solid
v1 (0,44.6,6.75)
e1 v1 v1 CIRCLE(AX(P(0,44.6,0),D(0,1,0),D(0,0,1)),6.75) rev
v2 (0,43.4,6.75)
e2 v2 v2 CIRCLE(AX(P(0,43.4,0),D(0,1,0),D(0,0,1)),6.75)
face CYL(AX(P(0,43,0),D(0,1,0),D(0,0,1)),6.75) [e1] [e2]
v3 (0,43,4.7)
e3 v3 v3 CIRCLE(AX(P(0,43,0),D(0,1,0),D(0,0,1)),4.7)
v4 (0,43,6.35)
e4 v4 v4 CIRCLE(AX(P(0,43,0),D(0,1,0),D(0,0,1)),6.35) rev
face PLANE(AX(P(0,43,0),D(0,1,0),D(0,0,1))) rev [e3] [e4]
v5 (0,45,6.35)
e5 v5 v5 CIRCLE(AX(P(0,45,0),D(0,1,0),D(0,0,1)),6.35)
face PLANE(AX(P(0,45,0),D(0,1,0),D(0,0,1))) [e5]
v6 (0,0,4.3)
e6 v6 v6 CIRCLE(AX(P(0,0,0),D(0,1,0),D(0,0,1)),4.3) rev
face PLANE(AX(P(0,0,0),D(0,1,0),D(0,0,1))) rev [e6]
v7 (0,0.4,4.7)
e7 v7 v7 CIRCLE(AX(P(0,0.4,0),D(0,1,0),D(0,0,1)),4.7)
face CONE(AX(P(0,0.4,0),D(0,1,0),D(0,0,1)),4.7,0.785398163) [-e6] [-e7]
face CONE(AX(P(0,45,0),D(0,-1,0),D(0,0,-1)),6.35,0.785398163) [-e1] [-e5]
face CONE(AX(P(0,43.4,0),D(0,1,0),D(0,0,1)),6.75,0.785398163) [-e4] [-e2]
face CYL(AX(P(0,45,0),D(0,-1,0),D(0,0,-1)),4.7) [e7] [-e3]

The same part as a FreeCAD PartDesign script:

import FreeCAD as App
import Part
import Sketcher


def edges_at(feature, points):
    """Names of the edges that pass closest to the given points."""
    edges = feature.Shape.Edges
    near = lambda p: min(range(len(edges)), key=lambda i: edges[i].distToShape(Part.Vertex(*p))[0])
    return sorted({f"Edge{near(p) + 1}" for p in points})

doc = App.newDocument("Part")
body = doc.addObject("PartDesign::Body", "Body")

sketch1 = doc.addObject("Sketcher::SketchObject", "Sketch")
body.addObject(sketch1)
sketch1.AttachmentSupport = (doc.XZ_Plane, [""])
sketch1.MapMode = "FlatFace"
sketch1.addGeometry(Part.Circle(App.Vector(0, 0, 0), App.Vector(0, 0, 1), 4.7), False)
sketch1.addConstraint([
    Sketcher.Constraint("Coincident", 0, 3, -1, 1),
    Sketcher.Constraint("Diameter", 0, 9.4),
])
pad1 = doc.addObject("PartDesign::Pad", "Pad")
body.addObject(pad1)
pad1.Profile = sketch1
pad1.Length = 45
pad1.Reversed = True

sketch2 = doc.addObject("Sketcher::SketchObject", "Sketch001")
body.addObject(sketch2)
sketch2.AttachmentSupport = (doc.XZ_Plane, [""])
sketch2.MapMode = "FlatFace"
sketch2.AttachmentOffset = App.Placement(App.Vector(0, 0, -45), App.Rotation())
sketch2.addGeometry(Part.Circle(App.Vector(0, 0, 0), App.Vector(0, 0, 1), 7), False)
sketch2.addConstraint([
    Sketcher.Constraint("Coincident", 0, 3, -1, 1),
    Sketcher.Constraint("Diameter", 0, 13.5),
])
pad2 = doc.addObject("PartDesign::Pad", "Pad001")
body.addObject(pad2)
pad2.Profile = sketch2
pad2.Length = 2
doc.recompute()

chamfer = doc.addObject("PartDesign::Chamfer", "Chamfer")
body.addObject(chamfer)
chamfer.Base = (pad2, edges_at(pad2, [(-6.75, 43, 0), (-6.75, 45, 0)]))
chamfer.Size = 0.4
doc.recompute()

chamfer2 = doc.addObject("PartDesign::Chamfer", "Chamfer001")
body.addObject(chamfer2)
chamfer2.Base = (chamfer, edges_at(chamfer, [(-4.7, 0, 0)]))
chamfer2.Size = 0.4

doc.recompute()
